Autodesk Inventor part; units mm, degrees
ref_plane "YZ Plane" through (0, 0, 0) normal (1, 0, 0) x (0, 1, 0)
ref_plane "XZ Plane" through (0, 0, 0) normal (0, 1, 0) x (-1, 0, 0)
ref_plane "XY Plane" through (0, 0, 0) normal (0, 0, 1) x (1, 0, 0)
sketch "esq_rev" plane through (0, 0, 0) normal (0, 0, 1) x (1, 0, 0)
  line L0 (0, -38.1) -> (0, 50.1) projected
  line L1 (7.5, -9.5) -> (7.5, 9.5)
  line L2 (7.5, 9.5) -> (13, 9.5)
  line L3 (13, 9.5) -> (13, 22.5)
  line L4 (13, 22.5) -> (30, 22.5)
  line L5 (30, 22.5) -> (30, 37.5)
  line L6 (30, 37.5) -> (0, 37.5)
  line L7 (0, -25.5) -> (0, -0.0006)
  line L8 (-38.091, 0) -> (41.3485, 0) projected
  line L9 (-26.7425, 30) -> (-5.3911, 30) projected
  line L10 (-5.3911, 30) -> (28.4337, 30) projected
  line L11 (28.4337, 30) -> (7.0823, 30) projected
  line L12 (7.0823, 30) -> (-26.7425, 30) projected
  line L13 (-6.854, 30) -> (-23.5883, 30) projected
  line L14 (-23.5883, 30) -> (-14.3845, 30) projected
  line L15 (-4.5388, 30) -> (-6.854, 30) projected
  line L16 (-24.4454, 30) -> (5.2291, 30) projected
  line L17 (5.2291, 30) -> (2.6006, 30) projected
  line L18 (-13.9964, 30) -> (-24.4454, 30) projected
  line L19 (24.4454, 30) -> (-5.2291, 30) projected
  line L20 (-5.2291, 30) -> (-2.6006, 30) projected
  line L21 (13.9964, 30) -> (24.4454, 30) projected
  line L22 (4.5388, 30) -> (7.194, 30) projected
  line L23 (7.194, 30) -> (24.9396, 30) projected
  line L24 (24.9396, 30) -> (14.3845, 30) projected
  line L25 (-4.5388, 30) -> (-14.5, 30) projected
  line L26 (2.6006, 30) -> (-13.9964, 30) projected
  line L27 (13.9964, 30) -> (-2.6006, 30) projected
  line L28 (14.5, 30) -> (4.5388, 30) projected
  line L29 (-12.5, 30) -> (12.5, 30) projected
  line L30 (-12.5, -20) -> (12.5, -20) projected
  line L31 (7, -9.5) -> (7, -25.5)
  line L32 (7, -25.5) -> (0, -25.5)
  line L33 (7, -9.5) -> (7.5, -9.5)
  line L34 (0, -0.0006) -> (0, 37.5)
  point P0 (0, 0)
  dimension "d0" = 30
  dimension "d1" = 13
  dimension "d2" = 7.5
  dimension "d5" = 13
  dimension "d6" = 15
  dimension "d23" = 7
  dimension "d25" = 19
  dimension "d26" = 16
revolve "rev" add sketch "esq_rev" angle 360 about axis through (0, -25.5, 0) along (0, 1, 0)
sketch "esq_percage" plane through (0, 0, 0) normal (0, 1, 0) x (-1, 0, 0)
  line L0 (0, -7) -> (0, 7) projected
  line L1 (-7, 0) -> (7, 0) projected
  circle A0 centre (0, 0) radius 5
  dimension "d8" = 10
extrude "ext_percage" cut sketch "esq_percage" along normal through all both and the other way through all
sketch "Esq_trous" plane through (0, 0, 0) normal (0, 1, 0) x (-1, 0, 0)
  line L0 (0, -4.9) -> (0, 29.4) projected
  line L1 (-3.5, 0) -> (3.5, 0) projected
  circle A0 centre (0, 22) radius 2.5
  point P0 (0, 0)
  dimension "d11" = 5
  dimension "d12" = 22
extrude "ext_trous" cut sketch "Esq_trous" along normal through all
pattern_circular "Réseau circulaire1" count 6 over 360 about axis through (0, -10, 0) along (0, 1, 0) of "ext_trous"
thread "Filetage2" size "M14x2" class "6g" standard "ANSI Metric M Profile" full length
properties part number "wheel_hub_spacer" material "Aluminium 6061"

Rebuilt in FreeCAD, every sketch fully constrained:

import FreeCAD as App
import Part
import Sketcher
from FreeCAD import Vector


def add_polygon(sketch, points):
    """Adds a closed chain of lines whose ends are joined by coincident constraints."""
    first, n = sketch.GeometryCount, len(points)
    for a, b in zip(points, points[1:] + points[:1]):
        sketch.addGeometry(Part.LineSegment(App.Vector(*a, 0), App.Vector(*b, 0)), False)
    for i in range(n):
        sketch.addConstraint(Sketcher.Constraint("Coincident", first + i, 2, first + (i + 1) % n, 1))

doc = App.newDocument("Part")
body = doc.addObject("PartDesign::Body", "Body")

# Sketch on XY plane
sketch1 = body.newObject("Sketcher::SketchObject", "Sketch")
sketch1.AttachmentSupport = (doc.getObject("XY_Plane"), [""])
sketch1.MapMode = "FlatFace"
add_polygon(sketch1, [(0, -25.5), (7, -25.5), (7, -9.5), (7.5, -9.5), (7.5, 9.5), (13, 9.5), (13, 22.5), (30, 22.5), (30, 37.5), (0, 37.5)])  # lines 0-9
sketch1.addConstraint([
    Sketcher.Constraint("Horizontal", 0),
    Sketcher.Constraint("Vertical", 1),
    Sketcher.Constraint("Horizontal", 2),
    Sketcher.Constraint("Vertical", 3),
    Sketcher.Constraint("Horizontal", 4),
    Sketcher.Constraint("Vertical", 5),
    Sketcher.Constraint("Horizontal", 6),
    Sketcher.Constraint("Vertical", 7),
    Sketcher.Constraint("Horizontal", 8),
    Sketcher.Constraint("Vertical", 9),
    Sketcher.Constraint("PointOnObject", 8, 2, -2),
    Sketcher.Constraint("DistanceX", 0, 1, 0, 2, 7.0),
    Sketcher.Constraint("DistanceX", 8, 2, 8, 1, 30.0),
    Sketcher.Constraint("DistanceY", 1, 1, 1, 2, 16.0),
    Sketcher.Constraint("DistanceY", 3, 1, 3, 2, 19.0),
    Sketcher.Constraint("DistanceY", 5, 1, 5, 2, 13.0),
    Sketcher.Constraint("DistanceY", 7, 1, 7, 2, 15.0),
    Sketcher.Constraint("DistanceX", -1, 1, 4, 2, 13.0),
    Sketcher.Constraint("DistanceX", -1, 1, 2, 2, 7.5),
    Sketcher.Constraint("DistanceY", 0, 2, -1, 1, 25.5),
])
revolution = body.newObject("PartDesign::Revolution", "Revolution")
revolution.Profile = sketch1
revolution.ReferenceAxis = (sketch1, ["V_Axis"])
revolution.Angle = 360

# Sketch on XZ plane
sketch2 = body.newObject("Sketcher::SketchObject", "Sketch001")
sketch2.AttachmentSupport = (doc.getObject("XZ_Plane"), [""])
sketch2.MapMode = "FlatFace"
sketch2.addGeometry(Part.Circle(Vector(0, 0, 0), Vector(0, 0, 1), 5), False)
sketch2.addConstraint([
    Sketcher.Constraint("Coincident", 0, 3, -1, 1),
    Sketcher.Constraint("Diameter", 0, 10.0),
])
pocket1 = body.newObject("PartDesign::Pocket", "Pocket")
pocket1.Profile = sketch2
pocket1.Type = "ThroughAll"
pocket1.Midplane = True

# Sketch on XZ plane
sketch3 = body.newObject("Sketcher::SketchObject", "Sketch002")
sketch3.AttachmentSupport = (doc.getObject("XZ_Plane"), [""])
sketch3.MapMode = "FlatFace"
sketch3.addGeometry(Part.Circle(Vector(0, 22, 0), Vector(0, 0, 1), 2.5), False)
sketch3.addConstraint([
    Sketcher.Constraint("PointOnObject", 0, 3, -2),
    Sketcher.Constraint("Diameter", 0, 5.0),
    Sketcher.Constraint("DistanceY", -1, 1, 0, 3, 22.0),
])
pocket2 = body.newObject("PartDesign::Pocket", "Pocket001")
pocket2.Profile = sketch3
pocket2.Type = "ThroughAll"
doc.recompute()

polarpattern = body.newObject("PartDesign::PolarPattern", "PolarPattern")
polarpattern.Originals = [pocket2]
polarpattern.Axis = (doc.getObject("Y_Axis"), [""])
polarpattern.Angle = 360
polarpattern.Occurrences = 6
body.Tip = polarpattern

doc.recompute()
